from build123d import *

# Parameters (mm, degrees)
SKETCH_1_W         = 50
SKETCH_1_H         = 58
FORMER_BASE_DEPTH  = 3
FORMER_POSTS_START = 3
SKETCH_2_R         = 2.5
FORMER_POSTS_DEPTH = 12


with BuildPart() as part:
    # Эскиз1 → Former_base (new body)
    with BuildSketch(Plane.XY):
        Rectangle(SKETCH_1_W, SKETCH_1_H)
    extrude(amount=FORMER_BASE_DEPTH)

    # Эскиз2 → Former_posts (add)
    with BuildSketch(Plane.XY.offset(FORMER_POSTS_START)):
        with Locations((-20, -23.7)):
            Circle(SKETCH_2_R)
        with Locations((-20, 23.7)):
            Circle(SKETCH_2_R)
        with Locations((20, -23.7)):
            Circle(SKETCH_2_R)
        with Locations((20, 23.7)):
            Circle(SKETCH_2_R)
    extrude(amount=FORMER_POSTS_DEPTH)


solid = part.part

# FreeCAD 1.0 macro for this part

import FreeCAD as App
import Part
import Sketcher

V = App.Vector


def add_polygon(sketch, points):
    """Adds a closed chain of lines whose ends are joined by coincident constraints."""
    first, n = sketch.GeometryCount, len(points)
    for a, b in zip(points, points[1:] + points[:1]):
        sketch.addGeometry(Part.LineSegment(App.Vector(*a, 0), App.Vector(*b, 0)), False)
    for i in range(n):
        sketch.addConstraint(Sketcher.Constraint("Coincident", first + i, 2, first + (i + 1) % n, 1))

doc = App.newDocument("Part")
body = doc.addObject("PartDesign::Body", "Body")

# Sketch on XY plane
sketch1 = body.newObject("Sketcher::SketchObject", "Sketch")
sketch1.AttachmentSupport = (doc.getObject("XY_Plane"), [""])
sketch1.MapMode = "FlatFace"
add_polygon(sketch1, [(-25, 29), (-25, -29), (25, -29), (25, 29)])  # lines 0-3
sketch1.addConstraint([
    Sketcher.Constraint("Vertical", 0),
    Sketcher.Constraint("Horizontal", 1),
    Sketcher.Constraint("Vertical", 2),
    Sketcher.Constraint("Horizontal", 3),
    Sketcher.Constraint("Symmetric", 0, 2, 2, 2, -1, 1),
    Sketcher.Constraint("DistanceX", 1, 1, 1, 2, 50.0),
    Sketcher.Constraint("DistanceY", 0, 2, 0, 1, 58.0),
])
pad1 = body.newObject("PartDesign::Pad", "Pad")
pad1.Profile = sketch1
pad1.Length = 3

# Sketch on XY plane
sketch2 = body.newObject("Sketcher::SketchObject", "Sketch001")
sketch2.AttachmentSupport = (doc.getObject("XY_Plane"), [""])
sketch2.MapMode = "FlatFace"
sketch2.AttachmentOffset = App.Placement(V(0, 0, 3), App.Rotation())
sketch2.addGeometry([
    Part.Circle(V(-20, -23.7, 0), V(0, 0, 1), 2.5),
    Part.Circle(V(-20, 23.7, 0), V(0, 0, 1), 2.5),
    Part.Circle(V(20, -23.7, 0), V(0, 0, 1), 2.5),
    Part.Circle(V(20, 23.7, 0), V(0, 0, 1), 2.5),
], False)
sketch2.addConstraint([
    Sketcher.Constraint("Equal", 0, 1),
    Sketcher.Constraint("Equal", 1, 2),
    Sketcher.Constraint("Equal", 2, 3),
    Sketcher.Constraint("Symmetric", 1, 3, 2, 3, -1, 1),
    Sketcher.Constraint("Symmetric", 0, 3, 3, 3, -1, 1),
    Sketcher.Constraint("Symmetric", 0, 3, 2, 3, -2),
    Sketcher.Constraint("Diameter", 0, 5.0),
    Sketcher.Constraint("DistanceX", 0, 3, -1, 1, 20.0),
    Sketcher.Constraint("DistanceY", 0, 3, -1, 1, 23.7),
])
pad2 = body.newObject("PartDesign::Pad", "Pad001")
pad2.Profile = sketch2
pad2.Length = 12

doc.recompute()
